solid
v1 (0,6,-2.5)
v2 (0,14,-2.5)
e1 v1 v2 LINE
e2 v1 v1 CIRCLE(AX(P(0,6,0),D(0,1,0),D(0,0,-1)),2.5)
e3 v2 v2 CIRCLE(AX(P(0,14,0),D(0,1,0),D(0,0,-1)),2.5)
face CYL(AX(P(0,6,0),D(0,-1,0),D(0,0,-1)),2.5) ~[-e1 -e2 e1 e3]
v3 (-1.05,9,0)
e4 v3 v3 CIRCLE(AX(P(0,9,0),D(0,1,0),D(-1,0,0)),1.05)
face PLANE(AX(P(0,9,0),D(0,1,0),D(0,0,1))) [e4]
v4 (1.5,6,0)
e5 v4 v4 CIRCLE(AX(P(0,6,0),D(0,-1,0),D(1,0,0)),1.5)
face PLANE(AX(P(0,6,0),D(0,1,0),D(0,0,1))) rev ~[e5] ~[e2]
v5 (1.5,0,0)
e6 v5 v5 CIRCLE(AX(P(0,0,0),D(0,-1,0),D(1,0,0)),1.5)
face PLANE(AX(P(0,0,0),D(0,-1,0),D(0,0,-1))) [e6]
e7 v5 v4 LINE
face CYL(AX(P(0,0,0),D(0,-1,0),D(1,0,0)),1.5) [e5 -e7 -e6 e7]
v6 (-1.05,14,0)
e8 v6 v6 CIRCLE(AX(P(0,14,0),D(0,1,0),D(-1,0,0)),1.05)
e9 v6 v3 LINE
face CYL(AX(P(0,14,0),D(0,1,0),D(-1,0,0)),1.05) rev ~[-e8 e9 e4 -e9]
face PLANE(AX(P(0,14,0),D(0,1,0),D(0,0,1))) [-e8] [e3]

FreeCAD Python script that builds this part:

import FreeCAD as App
import Part
import Sketcher

V = App.Vector
Q = App.Units.Quantity

doc = App.newDocument("Part")
params = doc.addObject("Spreadsheet::Sheet", "Params")
for row, (alias, value) in enumerate([
    ("sketch1_diameter", "3 mm"),
    ("pad1_length", "6 mm"),
    ("sketch2_diameter", "5 mm"),
    ("pad2_length", "8 mm"),
    ("sketch3_diameter", "2.1 mm"),
    ("pocket1_length", "5 mm"),
], start=1):
    params.set(f"A{row}", alias)
    params.set(f"B{row}", "=" + value)
    params.setAlias(f"B{row}", alias)

body = doc.addObject("PartDesign::Body", "Body")

# Sketch on XZ plane
sketch1 = body.newObject("Sketcher::SketchObject", "Sketch")
sketch1.AttachmentSupport = (doc.getObject("XZ_Plane"), [""])
sketch1.MapMode = "FlatFace"
sketch1.addGeometry(Part.Circle(V(0, 0, 0), V(0, 0, 1), 1.5), False)
sketch1.addConstraint([
    Sketcher.Constraint("Coincident", 0, 3, -1, 1),
    Sketcher.Constraint("Diameter", 0, Q("3 mm")),
])
sketch1.setExpression("Constraints[1]", "Params.sketch1_diameter")
pad1 = body.newObject("PartDesign::Pad", "Pad")
pad1.Profile = sketch1
pad1.setExpression("Length", "Params.pad1_length")
pad1.Reversed = True

# Sketch on XZ plane
sketch2 = body.newObject("Sketcher::SketchObject", "Sketch001")
sketch2.AttachmentSupport = (doc.getObject("XZ_Plane"), [""])
sketch2.MapMode = "FlatFace"
sketch2.AttachmentOffset = App.Placement(V(0, 0, -6), App.Rotation())
sketch2.addGeometry(Part.Circle(V(0, 0, 0), V(0, 0, 1), 2.5), False)
sketch2.addConstraint([
    Sketcher.Constraint("Coincident", 0, 3, -1, 1),
    Sketcher.Constraint("Diameter", 0, Q("5 mm")),
])
sketch2.setExpression("Constraints[1]", "Params.sketch2_diameter")
pad2 = body.newObject("PartDesign::Pad", "Pad001")
pad2.Profile = sketch2
pad2.setExpression("Length", "Params.pad2_length")
pad2.Reversed = True

# Sketch on XZ plane
sketch3 = body.newObject("Sketcher::SketchObject", "Sketch002")
sketch3.AttachmentSupport = (doc.getObject("XZ_Plane"), [""])
sketch3.MapMode = "FlatFace"
sketch3.AttachmentOffset = App.Placement(V(0, 0, -14), App.Rotation())
sketch3.addGeometry(Part.Circle(V(0, 0, 0), V(0, 0, 1), 1.1), False)
sketch3.addConstraint([
    Sketcher.Constraint("Coincident", 0, 3, -1, 1),
    Sketcher.Constraint("Diameter", 0, Q("2.1 mm")),
])
sketch3.setExpression("Constraints[1]", "Params.sketch3_diameter")
pocket1 = body.newObject("PartDesign::Pocket", "Pocket")
pocket1.Profile = sketch3
pocket1.setExpression("Length", "Params.pocket1_length")
pocket1.Reversed = True

doc.recompute()
